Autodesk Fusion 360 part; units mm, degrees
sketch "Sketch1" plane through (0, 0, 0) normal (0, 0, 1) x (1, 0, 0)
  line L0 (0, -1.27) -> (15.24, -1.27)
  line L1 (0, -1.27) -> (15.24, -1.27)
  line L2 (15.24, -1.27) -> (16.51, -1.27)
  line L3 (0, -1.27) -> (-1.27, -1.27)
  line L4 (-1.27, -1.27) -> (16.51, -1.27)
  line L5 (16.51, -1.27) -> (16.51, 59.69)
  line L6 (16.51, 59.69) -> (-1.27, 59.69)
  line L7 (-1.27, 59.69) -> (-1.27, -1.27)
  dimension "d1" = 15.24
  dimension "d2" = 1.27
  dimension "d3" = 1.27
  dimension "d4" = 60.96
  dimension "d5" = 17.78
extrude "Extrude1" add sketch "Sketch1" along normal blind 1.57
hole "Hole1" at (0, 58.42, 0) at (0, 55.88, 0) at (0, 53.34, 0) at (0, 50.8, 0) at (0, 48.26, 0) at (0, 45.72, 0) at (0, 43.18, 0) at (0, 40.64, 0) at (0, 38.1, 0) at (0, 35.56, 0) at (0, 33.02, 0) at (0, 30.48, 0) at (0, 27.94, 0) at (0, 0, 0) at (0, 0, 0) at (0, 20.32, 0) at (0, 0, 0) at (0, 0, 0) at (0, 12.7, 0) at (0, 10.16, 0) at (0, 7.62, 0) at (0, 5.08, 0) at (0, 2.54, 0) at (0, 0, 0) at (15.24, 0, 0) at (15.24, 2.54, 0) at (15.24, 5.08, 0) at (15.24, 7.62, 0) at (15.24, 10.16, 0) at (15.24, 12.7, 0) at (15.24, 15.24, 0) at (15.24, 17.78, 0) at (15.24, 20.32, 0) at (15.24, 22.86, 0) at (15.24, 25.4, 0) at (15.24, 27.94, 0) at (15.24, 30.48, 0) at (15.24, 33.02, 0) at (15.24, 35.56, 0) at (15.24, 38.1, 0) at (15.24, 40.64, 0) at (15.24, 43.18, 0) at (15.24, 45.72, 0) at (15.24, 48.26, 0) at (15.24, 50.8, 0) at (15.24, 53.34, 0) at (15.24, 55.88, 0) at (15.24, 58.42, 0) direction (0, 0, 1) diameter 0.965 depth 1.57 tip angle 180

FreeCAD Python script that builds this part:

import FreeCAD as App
import Part
import Sketcher

V = App.Vector
Q = App.Units.Quantity

doc = App.newDocument("Part")
params = doc.addObject("Spreadsheet::Sheet", "Params")
for row, (alias, value) in enumerate([
    ("sketch1_width", "0.7 in"),
    ("sketch1_height", "2.4 in"),
    ("pad1_length", "0.061811 in"),
    ("sketch2_diameter", "0.038 in"),
    ("hole_diameter", "0.0379921 in"),
    ("hole_depth", "0.061811 in"),
], start=1):
    params.set(f"A{row}", alias)
    params.set(f"B{row}", "=" + value)
    params.setAlias(f"B{row}", alias)

body = doc.addObject("PartDesign::Body", "Body")

# Sketch on XY plane
sketch1 = body.newObject("Sketcher::SketchObject", "Sketch")
sketch1.AttachmentSupport = (doc.getObject("XY_Plane"), [""])
sketch1.MapMode = "FlatFace"
sketch1.addGeometry(Part.LineSegment(V(-1, -1, 0), V(17, -1, 0)), False)
sketch1.addGeometry(Part.LineSegment(V(17, -1, 0), V(17, 60, 0)), False)
sketch1.addGeometry(Part.LineSegment(V(17, 60, 0), V(-1, 60, 0)), False)
sketch1.addGeometry(Part.LineSegment(V(-1, 60, 0), V(-1, -1, 0)), False)
sketch1.addConstraint(Sketcher.Constraint("Coincident", 0, 2, 1, 1))
sketch1.addConstraint(Sketcher.Constraint("Coincident", 1, 2, 2, 1))
sketch1.addConstraint(Sketcher.Constraint("Coincident", 2, 2, 3, 1))
sketch1.addConstraint(Sketcher.Constraint("Coincident", 3, 2, 0, 1))
sketch1.addConstraint(Sketcher.Constraint("Horizontal", 0))
sketch1.addConstraint(Sketcher.Constraint("Vertical", 1))
sketch1.addConstraint(Sketcher.Constraint("Horizontal", 2))
sketch1.addConstraint(Sketcher.Constraint("Vertical", 3))
sketch1.addConstraint(Sketcher.Constraint("DistanceX", 0, 1, 0, 2, Q("0.7 in")))
sketch1.addConstraint(Sketcher.Constraint("DistanceY", 1, 1, 1, 2, Q("2.4 in")))
sketch1.addConstraint(Sketcher.Constraint("DistanceY", 0, 2, -1, 1, Q("0.05 in")))
sketch1.addConstraint(Sketcher.Constraint("DistanceX", 2, 2, -1, 1, Q("0.05 in")))
sketch1.setExpression("Constraints[8]", "Params.sketch1_width")
sketch1.setExpression("Constraints[9]", "Params.sketch1_height")
pad1 = body.newObject("PartDesign::Pad", "Pad")
pad1.Profile = sketch1
pad1.setExpression("Length", "Params.pad1_length")

# Sketch on XY plane
sketch2 = body.newObject("Sketcher::SketchObject", "Sketch001")
sketch2.AttachmentSupport = (doc.getObject("XY_Plane"), [""])
sketch2.MapMode = "FlatFace"
sketch2.addGeometry(Part.Circle(V(0, 58.42, 0), V(0, 0, 1), 0.48), False)
sketch2.addGeometry(Part.Circle(V(0, 55.88, 0), V(0, 0, 1), 0.48), False)
sketch2.addGeometry(Part.Circle(V(0, 53.34, 0), V(0, 0, 1), 0.48), False)
sketch2.addGeometry(Part.Circle(V(0, 50.8, 0), V(0, 0, 1), 0.48), False)
sketch2.addGeometry(Part.Circle(V(0, 48.26, 0), V(0, 0, 1), 0.48), False)
sketch2.addGeometry(Part.Circle(V(0, 45.72, 0), V(0, 0, 1), 0.48), False)
sketch2.addGeometry(Part.Circle(V(0, 43.18, 0), V(0, 0, 1), 0.48), False)
sketch2.addGeometry(Part.Circle(V(0, 40.64, 0), V(0, 0, 1), 0.48), False)
sketch2.addGeometry(Part.Circle(V(0, 38.1, 0), V(0, 0, 1), 0.48), False)
sketch2.addGeometry(Part.Circle(V(0, 35.56, 0), V(0, 0, 1), 0.48), False)
sketch2.addGeometry(Part.Circle(V(0, 33.02, 0), V(0, 0, 1), 0.48), False)
sketch2.addGeometry(Part.Circle(V(0, 30.48, 0), V(0, 0, 1), 0.48), False)
sketch2.addGeometry(Part.Circle(V(0, 27.94, 0), V(0, 0, 1), 0.48), False)
sketch2.addGeometry(Part.Circle(V(0, 0, 0), V(0, 0, 1), 0.48), False)
sketch2.addGeometry(Part.Circle(V(0, 0, 0), V(0, 0, 1), 0.48), False)
sketch2.addGeometry(Part.Circle(V(0, 20.32, 0), V(0, 0, 1), 0.48), False)
sketch2.addGeometry(Part.Circle(V(0, 0, 0), V(0, 0, 1), 0.48), False)
sketch2.addGeometry(Part.Circle(V(0, 0, 0), V(0, 0, 1), 0.48), False)
sketch2.addGeometry(Part.Circle(V(0, 12.7, 0), V(0, 0, 1), 0.48), False)
sketch2.addGeometry(Part.Circle(V(0, 10.16, 0), V(0, 0, 1), 0.48), False)
sketch2.addGeometry(Part.Circle(V(0, 7.62, 0), V(0, 0, 1), 0.48), False)
sketch2.addGeometry(Part.Circle(V(0, 5.08, 0), V(0, 0, 1), 0.48), False)
sketch2.addGeometry(Part.Circle(V(0, 2.54, 0), V(0, 0, 1), 0.48), False)
sketch2.addGeometry(Part.Circle(V(0, 0, 0), V(0, 0, 1), 0.48), False)
sketch2.addGeometry(Part.Circle(V(15.24, 0, 0), V(0, 0, 1), 0.48), False)
sketch2.addGeometry(Part.Circle(V(15.24, 2.54, 0), V(0, 0, 1), 0.48), False)
sketch2.addGeometry(Part.Circle(V(15.24, 5.08, 0), V(0, 0, 1), 0.48), False)
sketch2.addGeometry(Part.Circle(V(15.24, 7.62, 0), V(0, 0, 1), 0.48), False)
sketch2.addGeometry(Part.Circle(V(15.24, 10.16, 0), V(0, 0, 1), 0.48), False)
sketch2.addGeometry(Part.Circle(V(15.24, 12.7, 0), V(0, 0, 1), 0.48), False)
sketch2.addGeometry(Part.Circle(V(15.24, 15.24, 0), V(0, 0, 1), 0.48), False)
sketch2.addGeometry(Part.Circle(V(15.24, 17.78, 0), V(0, 0, 1), 0.48), False)
sketch2.addGeometry(Part.Circle(V(15.24, 20.32, 0), V(0, 0, 1), 0.48), False)
sketch2.addGeometry(Part.Circle(V(15.24, 22.86, 0), V(0, 0, 1), 0.48), False)
sketch2.addGeometry(Part.Circle(V(15.24, 25.4, 0), V(0, 0, 1), 0.48), False)
sketch2.addGeometry(Part.Circle(V(15.24, 27.94, 0), V(0, 0, 1), 0.48), False)
sketch2.addGeometry(Part.Circle(V(15.24, 30.48, 0), V(0, 0, 1), 0.48), False)
sketch2.addGeometry(Part.Circle(V(15.24, 33.02, 0), V(0, 0, 1), 0.48), False)
sketch2.addGeometry(Part.Circle(V(15.24, 35.56, 0), V(0, 0, 1), 0.48), False)
sketch2.addGeometry(Part.Circle(V(15.24, 38.1, 0), V(0, 0, 1), 0.48), False)
sketch2.addGeometry(Part.Circle(V(15.24, 40.64, 0), V(0, 0, 1), 0.48), False)
sketch2.addGeometry(Part.Circle(V(15.24, 43.18, 0), V(0, 0, 1), 0.48), False)
sketch2.addGeometry(Part.Circle(V(15.24, 45.72, 0), V(0, 0, 1), 0.48), False)
sketch2.addGeometry(Part.Circle(V(15.24, 48.26, 0), V(0, 0, 1), 0.48), False)
sketch2.addGeometry(Part.Circle(V(15.24, 50.8, 0), V(0, 0, 1), 0.48), False)
sketch2.addGeometry(Part.Circle(V(15.24, 53.34, 0), V(0, 0, 1), 0.48), False)
sketch2.addGeometry(Part.Circle(V(15.24, 55.88, 0), V(0, 0, 1), 0.48), False)
sketch2.addGeometry(Part.Circle(V(15.24, 58.42, 0), V(0, 0, 1), 0.48), False)
sketch2.addConstraint(Sketcher.Constraint("Coincident", 13, 3, -1, 1))
sketch2.addConstraint(Sketcher.Constraint("Coincident", 14, 3, -1, 1))
sketch2.addConstraint(Sketcher.Constraint("Coincident", 16, 3, -1, 1))
sketch2.addConstraint(Sketcher.Constraint("Coincident", 17, 3, -1, 1))
sketch2.addConstraint(Sketcher.Constraint("Coincident", 23, 3, -1, 1))
sketch2.addConstraint(Sketcher.Constraint("Equal", 0, 1))
sketch2.addConstraint(Sketcher.Constraint("Equal", 1, 2))
sketch2.addConstraint(Sketcher.Constraint("Equal", 2, 3))
sketch2.addConstraint(Sketcher.Constraint("Equal", 3, 4))
sketch2.addConstraint(Sketcher.Constraint("Equal", 4, 5))
sketch2.addConstraint(Sketcher.Constraint("Equal", 5, 6))
sketch2.addConstraint(Sketcher.Constraint("Equal", 6, 7))
sketch2.addConstraint(Sketcher.Constraint("Equal", 7, 8))
sketch2.addConstraint(Sketcher.Constraint("Equal", 8, 9))
sketch2.addConstraint(Sketcher.Constraint("Equal", 9, 10))
sketch2.addConstraint(Sketcher.Constraint("Equal", 10, 11))
sketch2.addConstraint(Sketcher.Constraint("Equal", 11, 12))
sketch2.addConstraint(Sketcher.Constraint("Equal", 12, 13))
sketch2.addConstraint(Sketcher.Constraint("Equal", 13, 14))
sketch2.addConstraint(Sketcher.Constraint("Equal", 14, 15))
sketch2.addConstraint(Sketcher.Constraint("Equal", 15, 16))
sketch2.addConstraint(Sketcher.Constraint("Equal", 16, 17))
sketch2.addConstraint(Sketcher.Constraint("Equal", 17, 18))
sketch2.addConstraint(Sketcher.Constraint("Equal", 18, 19))
sketch2.addConstraint(Sketcher.Constraint("Equal", 19, 20))
sketch2.addConstraint(Sketcher.Constraint("Equal", 20, 21))
sketch2.addConstraint(Sketcher.Constraint("Equal", 21, 22))
sketch2.addConstraint(Sketcher.Constraint("Equal", 22, 23))
sketch2.addConstraint(Sketcher.Constraint("Equal", 23, 24))
sketch2.addConstraint(Sketcher.Constraint("Equal", 24, 25))
sketch2.addConstraint(Sketcher.Constraint("Equal", 25, 26))
sketch2.addConstraint(Sketcher.Constraint("Equal", 26, 27))
sketch2.addConstraint(Sketcher.Constraint("Equal", 27, 28))
sketch2.addConstraint(Sketcher.Constraint("Equal", 28, 29))
sketch2.addConstraint(Sketcher.Constraint("Equal", 29, 30))
sketch2.addConstraint(Sketcher.Constraint("Equal", 30, 31))
sketch2.addConstraint(Sketcher.Constraint("Equal", 31, 32))
sketch2.addConstraint(Sketcher.Constraint("Equal", 32, 33))
sketch2.addConstraint(Sketcher.Constraint("Equal", 33, 34))
sketch2.addConstraint(Sketcher.Constraint("Equal", 34, 35))
sketch2.addConstraint(Sketcher.Constraint("Equal", 35, 36))
sketch2.addConstraint(Sketcher.Constraint("Equal", 36, 37))
sketch2.addConstraint(Sketcher.Constraint("Equal", 37, 38))
sketch2.addConstraint(Sketcher.Constraint("Equal", 38, 39))
sketch2.addConstraint(Sketcher.Constraint("Equal", 39, 40))
sketch2.addConstraint(Sketcher.Constraint("Equal", 40, 41))
sketch2.addConstraint(Sketcher.Constraint("Equal", 41, 42))
sketch2.addConstraint(Sketcher.Constraint("Equal", 42, 43))
sketch2.addConstraint(Sketcher.Constraint("Equal", 43, 44))
sketch2.addConstraint(Sketcher.Constraint("Equal", 44, 45))
sketch2.addConstraint(Sketcher.Constraint("Equal", 45, 46))
sketch2.addConstraint(Sketcher.Constraint("Equal", 46, 47))
sketch2.addConstraint(Sketcher.Constraint("PointOnObject", 0, 3, -2))
sketch2.addConstraint(Sketcher.Constraint("PointOnObject", 1, 3, -2))
sketch2.addConstraint(Sketcher.Constraint("PointOnObject", 2, 3, -2))
sketch2.addConstraint(Sketcher.Constraint("PointOnObject", 3, 3, -2))
sketch2.addConstraint(Sketcher.Constraint("PointOnObject", 4, 3, -2))
sketch2.addConstraint(Sketcher.Constraint("PointOnObject", 5, 3, -2))
sketch2.addConstraint(Sketcher.Constraint("PointOnObject", 6, 3, -2))
sketch2.addConstraint(Sketcher.Constraint("PointOnObject", 7, 3, -2))
sketch2.addConstraint(Sketcher.Constraint("PointOnObject", 8, 3, -2))
sketch2.addConstraint(Sketcher.Constraint("PointOnObject", 9, 3, -2))
sketch2.addConstraint(Sketcher.Constraint("PointOnObject", 10, 3, -2))
sketch2.addConstraint(Sketcher.Constraint("PointOnObject", 11, 3, -2))
sketch2.addConstraint(Sketcher.Constraint("PointOnObject", 12, 3, -2))
sketch2.addConstraint(Sketcher.Constraint("PointOnObject", 15, 3, -2))
sketch2.addConstraint(Sketcher.Constraint("PointOnObject", 18, 3, -2))
sketch2.addConstraint(Sketcher.Constraint("PointOnObject", 19, 3, -2))
sketch2.addConstraint(Sketcher.Constraint("PointOnObject", 20, 3, -2))
sketch2.addConstraint(Sketcher.Constraint("PointOnObject", 21, 3, -2))
sketch2.addConstraint(Sketcher.Constraint("PointOnObject", 22, 3, -2))
sketch2.addConstraint(Sketcher.Constraint("PointOnObject", 24, 3, -1))
sketch2.addConstraint(Sketcher.Constraint("Horizontal", 22, 3, 25, 3))
sketch2.addConstraint(Sketcher.Constraint("Horizontal", 21, 3, 26, 3))
sketch2.addConstraint(Sketcher.Constraint("Horizontal", 20, 3, 27, 3))
sketch2.addConstraint(Sketcher.Constraint("Horizontal", 19, 3, 28, 3))
sketch2.addConstraint(Sketcher.Constraint("Horizontal", 18, 3, 29, 3))
sketch2.addConstraint(Sketcher.Constraint("Horizontal", 15, 3, 32, 3))
sketch2.addConstraint(Sketcher.Constraint("Horizontal", 12, 3, 35, 3))
sketch2.addConstraint(Sketcher.Constraint("Horizontal", 11, 3, 36, 3))
sketch2.addConstraint(Sketcher.Constraint("Horizontal", 10, 3, 37, 3))
sketch2.addConstraint(Sketcher.Constraint("Horizontal", 9, 3, 38, 3))
sketch2.addConstraint(Sketcher.Constraint("Horizontal", 8, 3, 39, 3))
sketch2.addConstraint(Sketcher.Constraint("Horizontal", 7, 3, 40, 3))
sketch2.addConstraint(Sketcher.Constraint("Horizontal", 6, 3, 41, 3))
sketch2.addConstraint(Sketcher.Constraint("Horizontal", 5, 3, 42, 3))
sketch2.addConstraint(Sketcher.Constraint("Horizontal", 4, 3, 43, 3))
sketch2.addConstraint(Sketcher.Constraint("Horizontal", 3, 3, 44, 3))
sketch2.addConstraint(Sketcher.Constraint("Horizontal", 2, 3, 45, 3))
sketch2.addConstraint(Sketcher.Constraint("Horizontal", 1, 3, 46, 3))
sketch2.addConstraint(Sketcher.Constraint("Horizontal", 0, 3, 47, 3))
sketch2.addConstraint(Sketcher.Constraint("Vertical", 24, 3, 25, 3))
sketch2.addConstraint(Sketcher.Constraint("Vertical", 25, 3, 26, 3))
sketch2.addConstraint(Sketcher.Constraint("Vertical", 26, 3, 27, 3))
sketch2.addConstraint(Sketcher.Constraint("Vertical", 27, 3, 28, 3))
sketch2.addConstraint(Sketcher.Constraint("Vertical", 28, 3, 29, 3))
sketch2.addConstraint(Sketcher.Constraint("Vertical", 29, 3, 30, 3))
sketch2.addConstraint(Sketcher.Constraint("Vertical", 30, 3, 31, 3))
sketch2.addConstraint(Sketcher.Constraint("Vertical", 31, 3, 32, 3))
sketch2.addConstraint(Sketcher.Constraint("Vertical", 32, 3, 33, 3))
sketch2.addConstraint(Sketcher.Constraint("Vertical", 33, 3, 34, 3))
sketch2.addConstraint(Sketcher.Constraint("Vertical", 34, 3, 35, 3))
sketch2.addConstraint(Sketcher.Constraint("Vertical", 35, 3, 36, 3))
sketch2.addConstraint(Sketcher.Constraint("Vertical", 36, 3, 37, 3))
sketch2.addConstraint(Sketcher.Constraint("Vertical", 37, 3, 38, 3))
sketch2.addConstraint(Sketcher.Constraint("Vertical", 38, 3, 39, 3))
sketch2.addConstraint(Sketcher.Constraint("Vertical", 39, 3, 40, 3))
sketch2.addConstraint(Sketcher.Constraint("Vertical", 40, 3, 41, 3))
sketch2.addConstraint(Sketcher.Constraint("Vertical", 41, 3, 42, 3))
sketch2.addConstraint(Sketcher.Constraint("Vertical", 42, 3, 43, 3))
sketch2.addConstraint(Sketcher.Constraint("Vertical", 43, 3, 44, 3))
sketch2.addConstraint(Sketcher.Constraint("Vertical", 44, 3, 45, 3))
sketch2.addConstraint(Sketcher.Constraint("Vertical", 45, 3, 46, 3))
sketch2.addConstraint(Sketcher.Constraint("Vertical", 46, 3, 47, 3))
sketch2.addConstraint(Sketcher.Constraint("Diameter", 0, Q("0.038 in")))
sketch2.addConstraint(Sketcher.Constraint("DistanceY", -1, 1, 3, 3, Q("2 in")))
sketch2.addConstraint(Sketcher.Constraint("DistanceY", -1, 1, 34, 3, Q("1 in")))
sketch2.addConstraint(Sketcher.Constraint("DistanceY", -1, 1, 0, 3, Q("2.3 in")))
sketch2.addConstraint(Sketcher.Constraint("DistanceY", -1, 1, 1, 3, Q("2.2 in")))
sketch2.addConstraint(Sketcher.Constraint("DistanceY", -1, 1, 2, 3, Q("2.1 in")))
sketch2.addConstraint(Sketcher.Constraint("DistanceY", -1, 1, 4, 3, Q("1.9 in")))
sketch2.addConstraint(Sketcher.Constraint("DistanceY", -1, 1, 5, 3, Q("1.8 in")))
sketch2.addConstraint(Sketcher.Constraint("DistanceY", -1, 1, 6, 3, Q("1.7 in")))
sketch2.addConstraint(Sketcher.Constraint("DistanceY", -1, 1, 7, 3, Q("1.6 in")))
sketch2.addConstraint(Sketcher.Constraint("DistanceY", -1, 1, 8, 3, Q("1.5 in")))
sketch2.addConstraint(Sketcher.Constraint("DistanceY", -1, 1, 9, 3, Q("1.4 in")))
sketch2.addConstraint(Sketcher.Constraint("DistanceY", -1, 1, 10, 3, Q("1.3 in")))
sketch2.addConstraint(Sketcher.Constraint("DistanceY", -1, 1, 11, 3, Q("1.2 in")))
sketch2.addConstraint(Sketcher.Constraint("DistanceY", -1, 1, 12, 3, Q("1.1 in")))
sketch2.addConstraint(Sketcher.Constraint("DistanceY", -1, 1, 15, 3, Q("0.8 in")))
sketch2.addConstraint(Sketcher.Constraint("DistanceY", -1, 1, 18, 3, Q("0.5 in")))
sketch2.addConstraint(Sketcher.Constraint("DistanceY", -1, 1, 19, 3, Q("0.4 in")))
sketch2.addConstraint(Sketcher.Constraint("DistanceY", -1, 1, 20, 3, Q("0.3 in")))
sketch2.addConstraint(Sketcher.Constraint("DistanceY", -1, 1, 21, 3, Q("0.2 in")))
sketch2.addConstraint(Sketcher.Constraint("DistanceY", -1, 1, 22, 3, Q("0.1 in")))
sketch2.addConstraint(Sketcher.Constraint("DistanceX", -1, 1, 24, 3, Q("0.6 in")))
sketch2.addConstraint(Sketcher.Constraint("DistanceY", -1, 1, 30, 3, Q("0.6 in")))
sketch2.addConstraint(Sketcher.Constraint("DistanceY", -1, 1, 31, 3, Q("0.7 in")))
sketch2.addConstraint(Sketcher.Constraint("DistanceY", -1, 1, 33, 3, Q("0.9 in")))
sketch2.setExpression("Constraints[114]", "Params.sketch2_diameter")
doc.recompute()
hole = body.newObject("PartDesign::Hole", "Hole")
hole.Profile = sketch2
hole.ThreadType = "None"
hole.setExpression("Diameter", "Params.hole_diameter")
hole.DepthType = "Dimension"
hole.setExpression("Depth", "Params.hole_depth")
hole.DrillPoint = "Flat"
hole.Reversed = True

doc.recompute()
